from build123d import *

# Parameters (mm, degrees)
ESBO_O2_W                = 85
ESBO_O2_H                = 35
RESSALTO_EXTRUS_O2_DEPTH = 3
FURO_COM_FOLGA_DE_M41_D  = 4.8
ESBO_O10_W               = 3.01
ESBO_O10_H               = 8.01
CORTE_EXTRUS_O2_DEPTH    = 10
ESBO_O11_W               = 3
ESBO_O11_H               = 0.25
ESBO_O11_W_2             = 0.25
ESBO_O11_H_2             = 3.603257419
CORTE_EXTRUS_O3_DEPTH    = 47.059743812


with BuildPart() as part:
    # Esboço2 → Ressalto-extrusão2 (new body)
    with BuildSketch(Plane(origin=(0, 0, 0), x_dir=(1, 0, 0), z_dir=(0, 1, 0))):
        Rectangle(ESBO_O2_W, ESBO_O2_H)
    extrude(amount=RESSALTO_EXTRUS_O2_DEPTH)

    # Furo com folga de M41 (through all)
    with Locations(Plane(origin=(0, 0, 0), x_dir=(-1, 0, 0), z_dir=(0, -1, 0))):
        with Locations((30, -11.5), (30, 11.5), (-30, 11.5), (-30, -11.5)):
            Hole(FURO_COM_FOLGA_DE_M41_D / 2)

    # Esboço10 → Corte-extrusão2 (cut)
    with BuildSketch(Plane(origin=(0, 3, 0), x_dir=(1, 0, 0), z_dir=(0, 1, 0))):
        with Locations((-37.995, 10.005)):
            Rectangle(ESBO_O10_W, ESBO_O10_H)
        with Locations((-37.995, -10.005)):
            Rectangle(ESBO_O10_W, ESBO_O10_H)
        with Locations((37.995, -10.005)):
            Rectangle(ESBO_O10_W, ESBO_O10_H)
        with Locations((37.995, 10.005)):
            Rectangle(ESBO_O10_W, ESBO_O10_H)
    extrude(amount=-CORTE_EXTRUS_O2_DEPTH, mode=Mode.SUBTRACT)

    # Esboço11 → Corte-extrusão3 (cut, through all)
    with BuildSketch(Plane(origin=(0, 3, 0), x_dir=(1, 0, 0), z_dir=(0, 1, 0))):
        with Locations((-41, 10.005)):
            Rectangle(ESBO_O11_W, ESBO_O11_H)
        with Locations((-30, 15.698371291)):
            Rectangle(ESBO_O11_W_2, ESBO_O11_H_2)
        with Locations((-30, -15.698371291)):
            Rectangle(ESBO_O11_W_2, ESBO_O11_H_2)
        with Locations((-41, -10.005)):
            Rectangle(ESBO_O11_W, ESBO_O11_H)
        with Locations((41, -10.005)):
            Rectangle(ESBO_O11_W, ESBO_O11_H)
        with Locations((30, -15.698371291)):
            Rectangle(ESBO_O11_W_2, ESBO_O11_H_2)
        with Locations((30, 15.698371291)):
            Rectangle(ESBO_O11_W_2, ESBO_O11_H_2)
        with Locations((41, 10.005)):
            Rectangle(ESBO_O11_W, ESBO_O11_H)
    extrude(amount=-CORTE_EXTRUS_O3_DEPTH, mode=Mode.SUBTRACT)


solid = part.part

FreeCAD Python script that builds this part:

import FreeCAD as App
import Part
import Sketcher
from FreeCAD import Vector
Q = App.Units.Quantity


def add_polygon(sketch, points):
    """Adds a closed chain of lines whose ends are joined by coincident constraints."""
    first, n = sketch.GeometryCount, len(points)
    for a, b in zip(points, points[1:] + points[:1]):
        sketch.addGeometry(Part.LineSegment(App.Vector(*a, 0), App.Vector(*b, 0)), False)
    for i in range(n):
        sketch.addConstraint(Sketcher.Constraint("Coincident", first + i, 2, first + (i + 1) % n, 1))

doc = App.newDocument("Part")
params = doc.addObject("Spreadsheet::Sheet", "Params")
for row, (alias, value) in enumerate([
    ("sketch1_width", "85 mm"),
    ("sketch1_height", "35 mm"),
    ("pad1_length", "3 mm"),
    ("sketch2_diameter", "4.8 mm"),
    ("hole_diameter", "4.8 mm"),
    ("sketch3_width", "3.01 mm"),
    ("sketch3_height", "8.01 mm"),
    ("pocket1_length", "10 mm"),
    ("sketch4_width", "3 mm"),
    ("sketch4_width2", "0.25 mm"),
], start=1):
    params.set(f"A{row}", alias)
    params.set(f"B{row}", "=" + value)
    params.setAlias(f"B{row}", alias)

body = doc.addObject("PartDesign::Body", "Body")

sketch1 = doc.addObject("Sketcher::SketchObject", "Sketch")
body.addObject(sketch1)
sketch1.AttachmentSupport = (doc.XZ_Plane, [""])
sketch1.MapMode = "FlatFace"
add_polygon(sketch1, [(-42, -18), (-42, 18), (42, 18), (42, -18)])
sketch1.addConstraint([
    Sketcher.Constraint("Vertical", 0),
    Sketcher.Constraint("Horizontal", 1),
    Sketcher.Constraint("Vertical", 2),
    Sketcher.Constraint("Horizontal", 3),
    Sketcher.Constraint("Symmetric", 0, 2, 2, 2, -1, 1),
    Sketcher.Constraint("DistanceX", 1, 1, 1, 2, Q("85 mm")),
    Sketcher.Constraint("DistanceY", 0, 1, 0, 2, Q("35 mm")),
])
sketch1.setExpression("Constraints[9]", "Params.sketch1_width")
sketch1.setExpression("Constraints[10]", "Params.sketch1_height")
pad1 = doc.addObject("PartDesign::Pad", "Pad")
body.addObject(pad1)
pad1.Profile = sketch1
pad1.setExpression("Length", "Params.pad1_length")
pad1.Reversed = True

sketch2 = doc.addObject("Sketcher::SketchObject", "Sketch001")
body.addObject(sketch2)
sketch2.AttachmentSupport = (doc.XZ_Plane, [""])
sketch2.MapMode = "FlatFace"
sketch2.addGeometry([
    Part.Circle(Vector(-30, 11.5, 0), Vector(0, 0, 1), 2.4),
    Part.Circle(Vector(-30, -11.5, 0), Vector(0, 0, 1), 2.4),
    Part.Circle(Vector(30, -11.5, 0), Vector(0, 0, 1), 2.4),
    Part.Circle(Vector(30, 11.5, 0), Vector(0, 0, 1), 2.4),
], False)
sketch2.addConstraint([
    Sketcher.Constraint("Equal", 0, 1),
    Sketcher.Constraint("Equal", 1, 2),
    Sketcher.Constraint("Equal", 2, 3),
    Sketcher.Constraint("Symmetric", 0, 3, 2, 3, -1, 1),
    Sketcher.Constraint("Symmetric", 1, 3, 3, 3, -1, 1),
    Sketcher.Constraint("Symmetric", 1, 3, 2, 3, -2),
    Sketcher.Constraint("Diameter", 0, Q("4.8 mm")),
    Sketcher.Constraint("DistanceX", 0, 3, -1, 1, Q("30 mm")),
    Sketcher.Constraint("DistanceY", 1, 3, 0, 3, Q("23 mm")),
])
sketch2.setExpression("Constraints[6]", "Params.sketch2_diameter")
doc.recompute()
hole = doc.addObject("PartDesign::Hole", "Hole")
body.addObject(hole)
hole.Profile = sketch2
hole.ThreadType = "None"
hole.setExpression("Diameter", "Params.hole_diameter")
hole.DepthType = "ThroughAll"

sketch3 = doc.addObject("Sketcher::SketchObject", "Sketch002")
body.addObject(sketch3)
sketch3.AttachmentSupport = (doc.XZ_Plane, [""])
sketch3.MapMode = "FlatFace"
sketch3.AttachmentOffset = App.Placement(Vector(0, 0, -3), App.Rotation())
add_polygon(sketch3, [(-39.5, -14), (-39.5, -6), (-36.5, -6), (-36.5, -14)])
add_polygon(sketch3, [(-39.5, 6), (-39.5, 14), (-36.5, 14), (-36.5, 6)])
add_polygon(sketch3, [(36.5, 6), (36.5, 14), (39.5, 14), (39.5, 6)])
add_polygon(sketch3, [(36.5, -14), (36.5, -6), (39.5, -6), (39.5, -14)])
sketch3.addConstraint([
    Sketcher.Constraint("Vertical", 0),
    Sketcher.Constraint("Horizontal", 1),
    Sketcher.Constraint("Vertical", 2),
    Sketcher.Constraint("Horizontal", 3),
    Sketcher.Constraint("Vertical", 4),
    Sketcher.Constraint("Horizontal", 5),
    Sketcher.Constraint("Vertical", 6),
    Sketcher.Constraint("Horizontal", 7),
    Sketcher.Constraint("Vertical", 8),
    Sketcher.Constraint("Horizontal", 9),
    Sketcher.Constraint("Vertical", 10),
    Sketcher.Constraint("Horizontal", 11),
    Sketcher.Constraint("Vertical", 12),
    Sketcher.Constraint("Horizontal", 13),
    Sketcher.Constraint("Vertical", 14),
    Sketcher.Constraint("Horizontal", 15),
    Sketcher.Constraint("Symmetric", 2, 2, 8, 2, -1, 1),
    Sketcher.Constraint("Symmetric", 0, 2, 10, 2, -1, 1),
    Sketcher.Constraint("Symmetric", 6, 2, 12, 2, -1, 1),
    Sketcher.Constraint("Symmetric", 4, 2, 14, 2, -1, 1),
    Sketcher.Constraint("Symmetric", 5, 2, 8, 2, -2),
    Sketcher.Constraint("Symmetric", 7, 2, 10, 2, -2),
    Sketcher.Constraint("DistanceY", 0, 2, -1, 1, Q("6 mm")),
    Sketcher.Constraint("DistanceX", 4, 2, 9, 2, Q("79 mm")),
    Sketcher.Constraint("DistanceX", 1, 1, 1, 2, Q("3.01 mm")),
    Sketcher.Constraint("DistanceY", 0, 1, 0, 2, Q("8.01 mm")),
])
sketch3.setExpression("Constraints[40]", "Params.sketch3_width")
sketch3.setExpression("Constraints[41]", "Params.sketch3_height")
pocket1 = doc.addObject("PartDesign::Pocket", "Pocket")
body.addObject(pocket1)
pocket1.Profile = sketch3
pocket1.setExpression("Length", "Params.pocket1_length")
pocket1.Reversed = True

sketch4 = doc.addObject("Sketcher::SketchObject", "Sketch003")
body.addObject(sketch4)
sketch4.AttachmentSupport = (doc.XZ_Plane, [""])
sketch4.MapMode = "FlatFace"
sketch4.AttachmentOffset = App.Placement(Vector(0, 0, -3), App.Rotation())
add_polygon(sketch4, [(-42.5, -10.13), (-42.5, -9.88), (-39.5, -9.88), (-39.5, -10.13)])
add_polygon(sketch4, [(-30.12, -17.5), (-30.12, -13.9), (-29.88, -13.9), (-29.88, -17.5)])
add_polygon(sketch4, [(-30.12, 13.9), (-30.12, 17.5), (-29.88, 17.5), (-29.88, 13.9)])
add_polygon(sketch4, [(-42.5, 9.88), (-42.5, 10.13), (-39.5, 10.13), (-39.5, 9.88)])
add_polygon(sketch4, [(39.5, 9.88), (39.5, 10.13), (42.5, 10.13), (42.5, 9.88)])
add_polygon(sketch4, [(29.88, 13.9), (29.88, 17.5), (30.12, 17.5), (30.12, 13.9)])
add_polygon(sketch4, [(29.88, -17.5), (29.88, -13.9), (30.12, -13.9), (30.12, -17.5)])
add_polygon(sketch4, [(39.5, -10.13), (39.5, -9.88), (42.5, -9.88), (42.5, -10.13)])
sketch4.addConstraint([
    Sketcher.Constraint("Vertical", 0),
    Sketcher.Constraint("Horizontal", 1),
    Sketcher.Constraint("Vertical", 2),
    Sketcher.Constraint("Horizontal", 3),
    Sketcher.Constraint("Vertical", 4),
    Sketcher.Constraint("Horizontal", 5),
    Sketcher.Constraint("Vertical", 6),
    Sketcher.Constraint("Horizontal", 7),
    Sketcher.Constraint("Vertical", 8),
    Sketcher.Constraint("Horizontal", 9),
    Sketcher.Constraint("Vertical", 10),
    Sketcher.Constraint("Horizontal", 11),
    Sketcher.Constraint("Vertical", 12),
    Sketcher.Constraint("Horizontal", 13),
    Sketcher.Constraint("Vertical", 14),
    Sketcher.Constraint("Horizontal", 15),
    Sketcher.Constraint("Vertical", 16),
    Sketcher.Constraint("Horizontal", 17),
    Sketcher.Constraint("Vertical", 18),
    Sketcher.Constraint("Horizontal", 19),
    Sketcher.Constraint("Vertical", 20),
    Sketcher.Constraint("Horizontal", 21),
    Sketcher.Constraint("Vertical", 22),
    Sketcher.Constraint("Horizontal", 23),
    Sketcher.Constraint("Vertical", 24),
    Sketcher.Constraint("Horizontal", 25),
    Sketcher.Constraint("Vertical", 26),
    Sketcher.Constraint("Horizontal", 27),
    Sketcher.Constraint("Vertical", 28),
    Sketcher.Constraint("Horizontal", 29),
    Sketcher.Constraint("Vertical", 30),
    Sketcher.Constraint("Horizontal", 31),
    Sketcher.Constraint("Symmetric", 2, 2, 16, 2, -1, 1),
    Sketcher.Constraint("Symmetric", 0, 2, 18, 2, -1, 1),
    Sketcher.Constraint("Symmetric", 6, 2, 20, 2, -1, 1),
    Sketcher.Constraint("Symmetric", 4, 2, 22, 2, -1, 1),
    Sketcher.Constraint("Symmetric", 10, 2, 24, 2, -1, 1),
    Sketcher.Constraint("Symmetric", 8, 2, 26, 2, -1, 1),
    Sketcher.Constraint("Symmetric", 14, 2, 28, 2, -1, 1),
    Sketcher.Constraint("Symmetric", 12, 2, 30, 2, -1, 1),
    Sketcher.Constraint("Symmetric", 13, 2, 16, 2, -2),
    Sketcher.Constraint("Symmetric", 15, 2, 18, 2, -2),
    Sketcher.Constraint("Symmetric", 9, 2, 20, 2, -2),
    Sketcher.Constraint("Symmetric", 11, 2, 22, 2, -2),
    Sketcher.Constraint("Equal", 27, 0),
    Sketcher.Constraint("DistanceX", 1, 1, 1, 2, Q("3 mm")),
    Sketcher.Constraint("DistanceX", 5, 1, 5, 2, Q("0.25 mm")),
    Sketcher.Constraint("DistanceX", 0, 2, -1, 1, Q("42.5 mm")),
    Sketcher.Constraint("DistanceY", 6, 2, -1, 1, Q("17.5 mm")),
    Sketcher.Constraint("DistanceY", 0, 2, -1, 1, Q("9.88 mm")),
    Sketcher.Constraint("DistanceX", 9, 2, 20, 2, Q("59.75 mm")),
    Sketcher.Constraint("DistanceY", 4, 1, 4, 2, Q("3.603257 mm")),
])
sketch4.setExpression("Constraints[77]", "Params.sketch4_width")
sketch4.setExpression("Constraints[78]", "Params.sketch4_width2")
pocket2 = doc.addObject("PartDesign::Pocket", "Pocket001")
body.addObject(pocket2)
pocket2.Profile = sketch4
pocket2.Type = "ThroughAll"
pocket2.Reversed = True

doc.recompute()
